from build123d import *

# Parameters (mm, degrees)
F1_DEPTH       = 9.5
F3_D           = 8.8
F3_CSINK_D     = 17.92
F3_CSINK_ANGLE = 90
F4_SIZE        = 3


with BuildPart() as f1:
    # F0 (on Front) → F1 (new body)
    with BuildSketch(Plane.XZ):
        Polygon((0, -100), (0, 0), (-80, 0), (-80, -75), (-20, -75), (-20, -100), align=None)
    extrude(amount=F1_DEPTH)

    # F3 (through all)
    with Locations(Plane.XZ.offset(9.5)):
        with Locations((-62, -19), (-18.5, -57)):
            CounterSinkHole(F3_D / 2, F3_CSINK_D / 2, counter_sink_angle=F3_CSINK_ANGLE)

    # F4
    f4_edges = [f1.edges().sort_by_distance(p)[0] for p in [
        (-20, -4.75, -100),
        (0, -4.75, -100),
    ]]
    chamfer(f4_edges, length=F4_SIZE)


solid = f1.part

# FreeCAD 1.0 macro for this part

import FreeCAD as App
import Part
import Sketcher
Q = App.Units.Quantity


def edges_at(feature, points):
    """Names of the edges that pass closest to the given points."""
    edges = feature.Shape.Edges
    near = lambda p: min(range(len(edges)), key=lambda i: edges[i].distToShape(Part.Vertex(*p))[0])
    return sorted({f"Edge{near(p) + 1}" for p in points})

doc = App.newDocument("Part")
params = doc.addObject("Spreadsheet::Sheet", "Params")
for row, (alias, value) in enumerate([
    ("sketch1_width", "80 mm"),
    ("sketch1_width2", "60 mm"),
    ("sketch1_height", "100 mm"),
    ("sketch1_height2", "75 mm"),
    ("pad1_length", "9.5 mm"),
    ("sketch2_diameter", "8.8 mm"),
    ("hole_diameter", "8.8 mm"),
    ("hole_csink_diameter", "17.92 mm"),
    ("chamfer_size", "3 mm"),
], start=1):
    params.set(f"A{row}", alias)
    params.set(f"B{row}", "=" + value)
    params.setAlias(f"B{row}", alias)

body = doc.addObject("PartDesign::Body", "Body")

# Sketch on XZ plane
sketch1 = body.newObject("Sketcher::SketchObject", "Sketch")
sketch1.AttachmentSupport = (doc.getObject("XZ_Plane"), [""])
sketch1.MapMode = "FlatFace"
sketch1.addGeometry(Part.LineSegment(App.Vector(0, -100, 0), App.Vector(0, 0, 0)), False)
sketch1.addGeometry(Part.LineSegment(App.Vector(0, 0, 0), App.Vector(-80, 0, 0)), False)
sketch1.addGeometry(Part.LineSegment(App.Vector(-80, 0, 0), App.Vector(-80, -75, 0)), False)
sketch1.addGeometry(Part.LineSegment(App.Vector(-80, -75, 0), App.Vector(-20, -75, 0)), False)
sketch1.addGeometry(Part.LineSegment(App.Vector(-20, -75, 0), App.Vector(-20, -100, 0)), False)
sketch1.addGeometry(Part.LineSegment(App.Vector(-20, -100, 0), App.Vector(0, -100, 0)), False)
sketch1.addConstraint(Sketcher.Constraint("Coincident", 0, 2, 1, 1))
sketch1.addConstraint(Sketcher.Constraint("Coincident", 1, 2, 2, 1))
sketch1.addConstraint(Sketcher.Constraint("Coincident", 2, 2, 3, 1))
sketch1.addConstraint(Sketcher.Constraint("Coincident", 3, 2, 4, 1))
sketch1.addConstraint(Sketcher.Constraint("Coincident", 4, 2, 5, 1))
sketch1.addConstraint(Sketcher.Constraint("Coincident", 5, 2, 0, 1))
sketch1.addConstraint(Sketcher.Constraint("Vertical", 0))
sketch1.addConstraint(Sketcher.Constraint("Horizontal", 1))
sketch1.addConstraint(Sketcher.Constraint("Vertical", 2))
sketch1.addConstraint(Sketcher.Constraint("Horizontal", 3))
sketch1.addConstraint(Sketcher.Constraint("Vertical", 4))
sketch1.addConstraint(Sketcher.Constraint("Horizontal", 5))
sketch1.addConstraint(Sketcher.Constraint("Coincident", 0, 2, -1, 1))
sketch1.addConstraint(Sketcher.Constraint("DistanceX", 1, 2, 1, 1, Q("80 mm")))
sketch1.addConstraint(Sketcher.Constraint("DistanceX", 3, 1, 3, 2, Q("60 mm")))
sketch1.addConstraint(Sketcher.Constraint("DistanceY", 0, 1, 0, 2, Q("100 mm")))
sketch1.addConstraint(Sketcher.Constraint("DistanceY", 2, 2, 2, 1, Q("75 mm")))
sketch1.setExpression("Constraints[13]", "Params.sketch1_width")
sketch1.setExpression("Constraints[14]", "Params.sketch1_width2")
sketch1.setExpression("Constraints[15]", "Params.sketch1_height")
sketch1.setExpression("Constraints[16]", "Params.sketch1_height2")
pad1 = body.newObject("PartDesign::Pad", "Pad")
pad1.Profile = sketch1
pad1.setExpression("Length", "Params.pad1_length")

# Sketch on XZ plane
sketch2 = body.newObject("Sketcher::SketchObject", "Sketch001")
sketch2.AttachmentSupport = (doc.getObject("XZ_Plane"), [""])
sketch2.MapMode = "FlatFace"
sketch2.AttachmentOffset = App.Placement(App.Vector(0, 0, 9.5), App.Rotation())
sketch2.addGeometry(Part.Circle(App.Vector(-62, -19, 0), App.Vector(0, 0, 1), 4.4), False)
sketch2.addGeometry(Part.Circle(App.Vector(-18.5, -57, 0), App.Vector(0, 0, 1), 4.4), False)
sketch2.addConstraint(Sketcher.Constraint("Equal", 0, 1))
sketch2.addConstraint(Sketcher.Constraint("Diameter", 0, Q("8.8 mm")))
sketch2.addConstraint(Sketcher.Constraint("DistanceX", 0, 3, -1, 1, Q("62 mm")))
sketch2.addConstraint(Sketcher.Constraint("DistanceY", 0, 3, -1, 1, Q("19 mm")))
sketch2.addConstraint(Sketcher.Constraint("DistanceY", 1, 3, -1, 1, Q("57 mm")))
sketch2.addConstraint(Sketcher.Constraint("DistanceX", 1, 3, -1, 1, Q("18.5 mm")))
sketch2.setExpression("Constraints[1]", "Params.sketch2_diameter")
doc.recompute()
hole = body.newObject("PartDesign::Hole", "Hole")
hole.Profile = sketch2
hole.ThreadType = "None"
hole.setExpression("Diameter", "Params.hole_diameter")
hole.DepthType = "ThroughAll"
hole.HoleCutType = "Countersink"
hole.setExpression("HoleCutDiameter", "Params.hole_csink_diameter")
hole.HoleCutCountersinkAngle = 90
doc.recompute()

chamfer = body.newObject("PartDesign::Chamfer", "Chamfer")
chamfer.Base = (hole, edges_at(hole, [(-20, -4.75, -100), (0, -4.75, -100)]))
chamfer.setExpression("Size", "Params.chamfer_size")

doc.recompute()
